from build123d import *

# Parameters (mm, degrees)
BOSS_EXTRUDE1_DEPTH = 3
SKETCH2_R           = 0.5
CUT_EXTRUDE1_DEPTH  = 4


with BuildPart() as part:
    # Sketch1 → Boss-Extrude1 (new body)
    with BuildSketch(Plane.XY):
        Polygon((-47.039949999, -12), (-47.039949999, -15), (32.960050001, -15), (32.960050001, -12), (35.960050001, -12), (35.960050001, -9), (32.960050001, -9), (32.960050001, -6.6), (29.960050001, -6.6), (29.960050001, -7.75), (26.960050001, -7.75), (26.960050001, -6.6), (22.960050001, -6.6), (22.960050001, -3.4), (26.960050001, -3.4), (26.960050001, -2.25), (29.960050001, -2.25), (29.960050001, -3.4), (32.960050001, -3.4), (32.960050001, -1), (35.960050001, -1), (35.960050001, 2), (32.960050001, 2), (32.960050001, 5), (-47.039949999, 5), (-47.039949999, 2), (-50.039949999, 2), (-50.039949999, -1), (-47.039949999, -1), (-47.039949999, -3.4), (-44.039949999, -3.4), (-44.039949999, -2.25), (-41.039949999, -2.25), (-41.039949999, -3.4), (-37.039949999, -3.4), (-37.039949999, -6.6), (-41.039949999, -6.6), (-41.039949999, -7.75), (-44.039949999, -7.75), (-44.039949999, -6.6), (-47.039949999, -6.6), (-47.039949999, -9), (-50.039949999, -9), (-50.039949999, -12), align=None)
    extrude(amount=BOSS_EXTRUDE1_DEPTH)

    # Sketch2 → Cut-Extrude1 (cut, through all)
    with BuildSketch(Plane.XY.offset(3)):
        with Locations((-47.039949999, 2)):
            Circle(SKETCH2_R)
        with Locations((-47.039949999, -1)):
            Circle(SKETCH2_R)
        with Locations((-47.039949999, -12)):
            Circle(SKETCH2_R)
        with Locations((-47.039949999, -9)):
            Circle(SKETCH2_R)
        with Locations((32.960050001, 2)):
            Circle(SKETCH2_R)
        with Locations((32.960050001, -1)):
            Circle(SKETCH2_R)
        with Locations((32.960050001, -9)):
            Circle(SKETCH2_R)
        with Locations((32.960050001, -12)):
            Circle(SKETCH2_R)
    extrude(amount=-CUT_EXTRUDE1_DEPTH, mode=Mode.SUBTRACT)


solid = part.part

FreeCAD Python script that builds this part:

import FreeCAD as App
import Part
import Sketcher

doc = App.newDocument("Part")
body = doc.addObject("PartDesign::Body", "Body")

# Sketch on XY plane
sketch1 = body.newObject("Sketcher::SketchObject", "Sketch")
sketch1.AttachmentSupport = (doc.getObject("XY_Plane"), [""])
sketch1.MapMode = "FlatFace"
sketch1.addGeometry(Part.LineSegment(App.Vector(-47, -12, 0), App.Vector(-47, -15, 0)), False)
sketch1.addGeometry(Part.LineSegment(App.Vector(-47, -15, 0), App.Vector(33, -15, 0)), False)
sketch1.addGeometry(Part.LineSegment(App.Vector(33, -15, 0), App.Vector(33, -12, 0)), False)
sketch1.addGeometry(Part.LineSegment(App.Vector(33, -12, 0), App.Vector(36, -12, 0)), False)
sketch1.addGeometry(Part.LineSegment(App.Vector(36, -12, 0), App.Vector(36, -9, 0)), False)
sketch1.addGeometry(Part.LineSegment(App.Vector(36, -9, 0), App.Vector(33, -9, 0)), False)
sketch1.addGeometry(Part.LineSegment(App.Vector(33, -9, 0), App.Vector(33, -6.6, 0)), False)
sketch1.addGeometry(Part.LineSegment(App.Vector(33, -6.6, 0), App.Vector(30, -6.6, 0)), False)
sketch1.addGeometry(Part.LineSegment(App.Vector(30, -6.6, 0), App.Vector(30, -7.8, 0)), False)
sketch1.addGeometry(Part.LineSegment(App.Vector(30, -7.8, 0), App.Vector(27, -7.8, 0)), False)
sketch1.addGeometry(Part.LineSegment(App.Vector(27, -7.8, 0), App.Vector(27, -6.6, 0)), False)
sketch1.addGeometry(Part.LineSegment(App.Vector(27, -6.6, 0), App.Vector(23, -6.6, 0)), False)
sketch1.addGeometry(Part.LineSegment(App.Vector(23, -6.6, 0), App.Vector(23, -3.4, 0)), False)
sketch1.addGeometry(Part.LineSegment(App.Vector(23, -3.4, 0), App.Vector(27, -3.4, 0)), False)
sketch1.addGeometry(Part.LineSegment(App.Vector(27, -3.4, 0), App.Vector(27, -2.2, 0)), False)
sketch1.addGeometry(Part.LineSegment(App.Vector(27, -2.2, 0), App.Vector(30, -2.2, 0)), False)
sketch1.addGeometry(Part.LineSegment(App.Vector(30, -2.2, 0), App.Vector(30, -3.4, 0)), False)
sketch1.addGeometry(Part.LineSegment(App.Vector(30, -3.4, 0), App.Vector(33, -3.4, 0)), False)
sketch1.addGeometry(Part.LineSegment(App.Vector(33, -3.4, 0), App.Vector(33, -1, 0)), False)
sketch1.addGeometry(Part.LineSegment(App.Vector(33, -1, 0), App.Vector(36, -1, 0)), False)
sketch1.addGeometry(Part.LineSegment(App.Vector(36, -1, 0), App.Vector(36, 2, 0)), False)
sketch1.addGeometry(Part.LineSegment(App.Vector(36, 2, 0), App.Vector(33, 2, 0)), False)
sketch1.addGeometry(Part.LineSegment(App.Vector(33, 2, 0), App.Vector(33, 5, 0)), False)
sketch1.addGeometry(Part.LineSegment(App.Vector(33, 5, 0), App.Vector(-47, 5, 0)), False)
sketch1.addGeometry(Part.LineSegment(App.Vector(-47, 5, 0), App.Vector(-47, 2, 0)), False)
sketch1.addGeometry(Part.LineSegment(App.Vector(-47, 2, 0), App.Vector(-50, 2, 0)), False)
sketch1.addGeometry(Part.LineSegment(App.Vector(-50, 2, 0), App.Vector(-50, -1, 0)), False)
sketch1.addGeometry(Part.LineSegment(App.Vector(-50, -1, 0), App.Vector(-47, -1, 0)), False)
sketch1.addGeometry(Part.LineSegment(App.Vector(-47, -1, 0), App.Vector(-47, -3.4, 0)), False)
sketch1.addGeometry(Part.LineSegment(App.Vector(-47, -3.4, 0), App.Vector(-44, -3.4, 0)), False)
sketch1.addGeometry(Part.LineSegment(App.Vector(-44, -3.4, 0), App.Vector(-44, -2.2, 0)), False)
sketch1.addGeometry(Part.LineSegment(App.Vector(-44, -2.2, 0), App.Vector(-41, -2.2, 0)), False)
sketch1.addGeometry(Part.LineSegment(App.Vector(-41, -2.2, 0), App.Vector(-41, -3.4, 0)), False)
sketch1.addGeometry(Part.LineSegment(App.Vector(-41, -3.4, 0), App.Vector(-37, -3.4, 0)), False)
sketch1.addGeometry(Part.LineSegment(App.Vector(-37, -3.4, 0), App.Vector(-37, -6.6, 0)), False)
sketch1.addGeometry(Part.LineSegment(App.Vector(-37, -6.6, 0), App.Vector(-41, -6.6, 0)), False)
sketch1.addGeometry(Part.LineSegment(App.Vector(-41, -6.6, 0), App.Vector(-41, -7.8, 0)), False)
sketch1.addGeometry(Part.LineSegment(App.Vector(-41, -7.8, 0), App.Vector(-44, -7.8, 0)), False)
sketch1.addGeometry(Part.LineSegment(App.Vector(-44, -7.8, 0), App.Vector(-44, -6.6, 0)), False)
sketch1.addGeometry(Part.LineSegment(App.Vector(-44, -6.6, 0), App.Vector(-47, -6.6, 0)), False)
sketch1.addGeometry(Part.LineSegment(App.Vector(-47, -6.6, 0), App.Vector(-47, -9, 0)), False)
sketch1.addGeometry(Part.LineSegment(App.Vector(-47, -9, 0), App.Vector(-50, -9, 0)), False)
sketch1.addGeometry(Part.LineSegment(App.Vector(-50, -9, 0), App.Vector(-50, -12, 0)), False)
sketch1.addGeometry(Part.LineSegment(App.Vector(-50, -12, 0), App.Vector(-47, -12, 0)), False)
sketch1.addConstraint(Sketcher.Constraint("Coincident", 0, 2, 1, 1))
sketch1.addConstraint(Sketcher.Constraint("Coincident", 1, 2, 2, 1))
sketch1.addConstraint(Sketcher.Constraint("Coincident", 2, 2, 3, 1))
sketch1.addConstraint(Sketcher.Constraint("Coincident", 3, 2, 4, 1))
sketch1.addConstraint(Sketcher.Constraint("Coincident", 4, 2, 5, 1))
sketch1.addConstraint(Sketcher.Constraint("Coincident", 5, 2, 6, 1))
sketch1.addConstraint(Sketcher.Constraint("Coincident", 6, 2, 7, 1))
sketch1.addConstraint(Sketcher.Constraint("Coincident", 7, 2, 8, 1))
sketch1.addConstraint(Sketcher.Constraint("Coincident", 8, 2, 9, 1))
sketch1.addConstraint(Sketcher.Constraint("Coincident", 9, 2, 10, 1))
sketch1.addConstraint(Sketcher.Constraint("Coincident", 10, 2, 11, 1))
sketch1.addConstraint(Sketcher.Constraint("Coincident", 11, 2, 12, 1))
sketch1.addConstraint(Sketcher.Constraint("Coincident", 12, 2, 13, 1))
sketch1.addConstraint(Sketcher.Constraint("Coincident", 13, 2, 14, 1))
sketch1.addConstraint(Sketcher.Constraint("Coincident", 14, 2, 15, 1))
sketch1.addConstraint(Sketcher.Constraint("Coincident", 15, 2, 16, 1))
sketch1.addConstraint(Sketcher.Constraint("Coincident", 16, 2, 17, 1))
sketch1.addConstraint(Sketcher.Constraint("Coincident", 17, 2, 18, 1))
sketch1.addConstraint(Sketcher.Constraint("Coincident", 18, 2, 19, 1))
sketch1.addConstraint(Sketcher.Constraint("Coincident", 19, 2, 20, 1))
sketch1.addConstraint(Sketcher.Constraint("Coincident", 20, 2, 21, 1))
sketch1.addConstraint(Sketcher.Constraint("Coincident", 21, 2, 22, 1))
sketch1.addConstraint(Sketcher.Constraint("Coincident", 22, 2, 23, 1))
sketch1.addConstraint(Sketcher.Constraint("Coincident", 23, 2, 24, 1))
sketch1.addConstraint(Sketcher.Constraint("Coincident", 24, 2, 25, 1))
sketch1.addConstraint(Sketcher.Constraint("Coincident", 25, 2, 26, 1))
sketch1.addConstraint(Sketcher.Constraint("Coincident", 26, 2, 27, 1))
sketch1.addConstraint(Sketcher.Constraint("Coincident", 27, 2, 28, 1))
sketch1.addConstraint(Sketcher.Constraint("Coincident", 28, 2, 29, 1))
sketch1.addConstraint(Sketcher.Constraint("Coincident", 29, 2, 30, 1))
sketch1.addConstraint(Sketcher.Constraint("Coincident", 30, 2, 31, 1))
sketch1.addConstraint(Sketcher.Constraint("Coincident", 31, 2, 32, 1))
sketch1.addConstraint(Sketcher.Constraint("Coincident", 32, 2, 33, 1))
sketch1.addConstraint(Sketcher.Constraint("Coincident", 33, 2, 34, 1))
sketch1.addConstraint(Sketcher.Constraint("Coincident", 34, 2, 35, 1))
sketch1.addConstraint(Sketcher.Constraint("Coincident", 35, 2, 36, 1))
sketch1.addConstraint(Sketcher.Constraint("Coincident", 36, 2, 37, 1))
sketch1.addConstraint(Sketcher.Constraint("Coincident", 37, 2, 38, 1))
sketch1.addConstraint(Sketcher.Constraint("Coincident", 38, 2, 39, 1))
sketch1.addConstraint(Sketcher.Constraint("Coincident", 39, 2, 40, 1))
sketch1.addConstraint(Sketcher.Constraint("Coincident", 40, 2, 41, 1))
sketch1.addConstraint(Sketcher.Constraint("Coincident", 41, 2, 42, 1))
sketch1.addConstraint(Sketcher.Constraint("Coincident", 42, 2, 43, 1))
sketch1.addConstraint(Sketcher.Constraint("Coincident", 43, 2, 0, 1))
sketch1.addConstraint(Sketcher.Constraint("Vertical", 0))
sketch1.addConstraint(Sketcher.Constraint("Horizontal", 1))
sketch1.addConstraint(Sketcher.Constraint("Vertical", 2))
sketch1.addConstraint(Sketcher.Constraint("Horizontal", 3))
sketch1.addConstraint(Sketcher.Constraint("Vertical", 4))
sketch1.addConstraint(Sketcher.Constraint("Horizontal", 5))
sketch1.addConstraint(Sketcher.Constraint("Vertical", 6))
sketch1.addConstraint(Sketcher.Constraint("Horizontal", 7))
sketch1.addConstraint(Sketcher.Constraint("Vertical", 8))
sketch1.addConstraint(Sketcher.Constraint("Horizontal", 9))
sketch1.addConstraint(Sketcher.Constraint("Vertical", 10))
sketch1.addConstraint(Sketcher.Constraint("Horizontal", 11))
sketch1.addConstraint(Sketcher.Constraint("Vertical", 12))
sketch1.addConstraint(Sketcher.Constraint("Horizontal", 13))
sketch1.addConstraint(Sketcher.Constraint("Vertical", 14))
sketch1.addConstraint(Sketcher.Constraint("Horizontal", 15))
sketch1.addConstraint(Sketcher.Constraint("Vertical", 16))
sketch1.addConstraint(Sketcher.Constraint("Horizontal", 17))
sketch1.addConstraint(Sketcher.Constraint("Vertical", 18))
sketch1.addConstraint(Sketcher.Constraint("Horizontal", 19))
sketch1.addConstraint(Sketcher.Constraint("Vertical", 20))
sketch1.addConstraint(Sketcher.Constraint("Horizontal", 21))
sketch1.addConstraint(Sketcher.Constraint("Vertical", 22))
sketch1.addConstraint(Sketcher.Constraint("Horizontal", 23))
sketch1.addConstraint(Sketcher.Constraint("Vertical", 24))
sketch1.addConstraint(Sketcher.Constraint("Horizontal", 25))
sketch1.addConstraint(Sketcher.Constraint("Vertical", 26))
sketch1.addConstraint(Sketcher.Constraint("Horizontal", 27))
sketch1.addConstraint(Sketcher.Constraint("Vertical", 28))
sketch1.addConstraint(Sketcher.Constraint("Horizontal", 29))
sketch1.addConstraint(Sketcher.Constraint("Vertical", 30))
sketch1.addConstraint(Sketcher.Constraint("Horizontal", 31))
sketch1.addConstraint(Sketcher.Constraint("Vertical", 32))
sketch1.addConstraint(Sketcher.Constraint("Horizontal", 33))
sketch1.addConstraint(Sketcher.Constraint("Vertical", 34))
sketch1.addConstraint(Sketcher.Constraint("Horizontal", 35))
sketch1.addConstraint(Sketcher.Constraint("Vertical", 36))
sketch1.addConstraint(Sketcher.Constraint("Horizontal", 37))
sketch1.addConstraint(Sketcher.Constraint("Vertical", 38))
sketch1.addConstraint(Sketcher.Constraint("Horizontal", 39))
sketch1.addConstraint(Sketcher.Constraint("Vertical", 40))
sketch1.addConstraint(Sketcher.Constraint("Horizontal", 41))
sketch1.addConstraint(Sketcher.Constraint("Vertical", 42))
sketch1.addConstraint(Sketcher.Constraint("Horizontal", 43))
sketch1.addConstraint(Sketcher.Constraint("Horizontal", 7, 2, 10, 2))
sketch1.addConstraint(Sketcher.Constraint("Horizontal", 13, 2, 16, 2))
sketch1.addConstraint(Sketcher.Constraint("Horizontal", 21, 2, 24, 2))
sketch1.addConstraint(Sketcher.Constraint("Horizontal", 19, 2, 26, 2))
sketch1.addConstraint(Sketcher.Constraint("Horizontal", 17, 2, 28, 2))
sketch1.addConstraint(Sketcher.Constraint("Horizontal", 15, 2, 30, 2))
sketch1.addConstraint(Sketcher.Constraint("Horizontal", 29, 2, 32, 2))
sketch1.addConstraint(Sketcher.Constraint("Horizontal", 11, 2, 34, 2))
sketch1.addConstraint(Sketcher.Constraint("Horizontal", 9, 2, 36, 2))
sketch1.addConstraint(Sketcher.Constraint("Horizontal", 35, 2, 38, 2))
sketch1.addConstraint(Sketcher.Constraint("Horizontal", 5, 2, 40, 2))
sketch1.addConstraint(Sketcher.Constraint("Horizontal", 3, 2, 42, 2))
sketch1.addConstraint(Sketcher.Constraint("Vertical", 2, 2, 5, 2))
sketch1.addConstraint(Sketcher.Constraint("Vertical", 10, 2, 13, 2))
sketch1.addConstraint(Sketcher.Constraint("Vertical", 8, 2, 15, 2))
sketch1.addConstraint(Sketcher.Constraint("Vertical", 6, 2, 17, 2))
sketch1.addConstraint(Sketcher.Constraint("Vertical", 4, 2, 19, 2))
sketch1.addConstraint(Sketcher.Constraint("Vertical", 18, 2, 21, 2))
sketch1.addConstraint(Sketcher.Constraint("Vertical", 0, 2, 23, 2))
sketch1.addConstraint(Sketcher.Constraint("Vertical", 24, 2, 27, 2))
sketch1.addConstraint(Sketcher.Constraint("Vertical", 32, 2, 35, 2))
sketch1.addConstraint(Sketcher.Constraint("Vertical", 30, 2, 37, 2))
sketch1.addConstraint(Sketcher.Constraint("Vertical", 28, 2, 39, 2))
sketch1.addConstraint(Sketcher.Constraint("Vertical", 26, 2, 41, 2))
sketch1.addConstraint(Sketcher.Constraint("Equal", 5, 7))
sketch1.addConstraint(Sketcher.Constraint("Equal", 7, 9))
sketch1.addConstraint(Sketcher.Constraint("Equal", 21, 25))
sketch1.addConstraint(Sketcher.Constraint("Equal", 27, 29))
sketch1.addConstraint(Sketcher.Constraint("Equal", 29, 31))
sketch1.addConstraint(Sketcher.Constraint("Equal", 13, 33))
sketch1.addConstraint(Sketcher.Constraint("Equal", 43, 0))
sketch1.addConstraint(Sketcher.Constraint("Equal", 2, 4))
sketch1.addConstraint(Sketcher.Constraint("Equal", 10, 14))
sketch1.addConstraint(Sketcher.Constraint("Equal", 6, 18))
sketch1.addConstraint(Sketcher.Constraint("Equal", 4, 20))
sketch1.addConstraint(Sketcher.Constraint("Equal", 20, 22))
sketch1.addConstraint(Sketcher.Constraint("DistanceX", 1, 1, 1, 2, 80.0))
sketch1.addConstraint(Sketcher.Constraint("DistanceX", 3, 1, 3, 2, 3.0))
sketch1.addConstraint(Sketcher.Constraint("DistanceX", 11, 2, 11, 1, 4.0))
sketch1.addConstraint(Sketcher.Constraint("DistanceY", 6, 1, 6, 2, 2.4))
sketch1.addConstraint(Sketcher.Constraint("DistanceY", 12, 1, 12, 2, 3.2))
sketch1.addConstraint(Sketcher.Constraint("DistanceY", 0, 2, -1, 1, 15.0))
sketch1.addConstraint(Sketcher.Constraint("DistanceY", 8, 2, 8, 1, 1.15))
sketch1.addConstraint(Sketcher.Constraint("DistanceX", 0, 2, -1, 1, 47.03995))
pad1 = body.newObject("PartDesign::Pad", "Pad")
pad1.Profile = sketch1
pad1.Length = 3

# Sketch on XY plane
sketch2 = body.newObject("Sketcher::SketchObject", "Sketch001")
sketch2.AttachmentSupport = (doc.getObject("XY_Plane"), [""])
sketch2.MapMode = "FlatFace"
sketch2.AttachmentOffset = App.Placement(App.Vector(0, 0, 3), App.Rotation())
sketch2.addGeometry(Part.Circle(App.Vector(-47, 2, 0), App.Vector(0, 0, 1), 0.5), False)
sketch2.addGeometry(Part.Circle(App.Vector(-47, -1, 0), App.Vector(0, 0, 1), 0.5), False)
sketch2.addGeometry(Part.Circle(App.Vector(-47, -12, 0), App.Vector(0, 0, 1), 0.5), False)
sketch2.addGeometry(Part.Circle(App.Vector(-47, -9, 0), App.Vector(0, 0, 1), 0.5), False)
sketch2.addGeometry(Part.Circle(App.Vector(33, 2, 0), App.Vector(0, 0, 1), 0.5), False)
sketch2.addGeometry(Part.Circle(App.Vector(33, -1, 0), App.Vector(0, 0, 1), 0.5), False)
sketch2.addGeometry(Part.Circle(App.Vector(33, -9, 0), App.Vector(0, 0, 1), 0.5), False)
sketch2.addGeometry(Part.Circle(App.Vector(33, -12, 0), App.Vector(0, 0, 1), 0.5), False)
sketch2.addConstraint(Sketcher.Constraint("Equal", 0, 1))
sketch2.addConstraint(Sketcher.Constraint("Equal", 1, 2))
sketch2.addConstraint(Sketcher.Constraint("Equal", 2, 3))
sketch2.addConstraint(Sketcher.Constraint("Equal", 3, 4))
sketch2.addConstraint(Sketcher.Constraint("Equal", 4, 5))
sketch2.addConstraint(Sketcher.Constraint("Equal", 5, 6))
sketch2.addConstraint(Sketcher.Constraint("Equal", 6, 7))
sketch2.addConstraint(Sketcher.Constraint("Horizontal", 0, 3, 4, 3))
sketch2.addConstraint(Sketcher.Constraint("Horizontal", 1, 3, 5, 3))
sketch2.addConstraint(Sketcher.Constraint("Horizontal", 3, 3, 6, 3))
sketch2.addConstraint(Sketcher.Constraint("Horizontal", 2, 3, 7, 3))
sketch2.addConstraint(Sketcher.Constraint("Vertical", 0, 3, 1, 3))
sketch2.addConstraint(Sketcher.Constraint("Vertical", 1, 3, 2, 3))
sketch2.addConstraint(Sketcher.Constraint("Vertical", 2, 3, 3, 3))
sketch2.addConstraint(Sketcher.Constraint("Vertical", 4, 3, 5, 3))
sketch2.addConstraint(Sketcher.Constraint("Vertical", 5, 3, 6, 3))
sketch2.addConstraint(Sketcher.Constraint("Vertical", 6, 3, 7, 3))
sketch2.addConstraint(Sketcher.Constraint("Diameter", 0, 1.0))
sketch2.addConstraint(Sketcher.Constraint("DistanceY", -1, 1, 0, 3, 2.0))
sketch2.addConstraint(Sketcher.Constraint("DistanceY", 1, 3, -1, 1, 1.0))
sketch2.addConstraint(Sketcher.Constraint("DistanceY", 2, 3, -1, 1, 12.0))
sketch2.addConstraint(Sketcher.Constraint("DistanceY", 3, 3, -1, 1, 9.0))
sketch2.addConstraint(Sketcher.Constraint("DistanceX", 0, 3, 4, 3, 80.0))
sketch2.addConstraint(Sketcher.Constraint("DistanceX", 0, 3, -1, 1, 47.03995))
pocket1 = body.newObject("PartDesign::Pocket", "Pocket")
pocket1.Profile = sketch2
pocket1.Type = "ThroughAll"

doc.recompute()
